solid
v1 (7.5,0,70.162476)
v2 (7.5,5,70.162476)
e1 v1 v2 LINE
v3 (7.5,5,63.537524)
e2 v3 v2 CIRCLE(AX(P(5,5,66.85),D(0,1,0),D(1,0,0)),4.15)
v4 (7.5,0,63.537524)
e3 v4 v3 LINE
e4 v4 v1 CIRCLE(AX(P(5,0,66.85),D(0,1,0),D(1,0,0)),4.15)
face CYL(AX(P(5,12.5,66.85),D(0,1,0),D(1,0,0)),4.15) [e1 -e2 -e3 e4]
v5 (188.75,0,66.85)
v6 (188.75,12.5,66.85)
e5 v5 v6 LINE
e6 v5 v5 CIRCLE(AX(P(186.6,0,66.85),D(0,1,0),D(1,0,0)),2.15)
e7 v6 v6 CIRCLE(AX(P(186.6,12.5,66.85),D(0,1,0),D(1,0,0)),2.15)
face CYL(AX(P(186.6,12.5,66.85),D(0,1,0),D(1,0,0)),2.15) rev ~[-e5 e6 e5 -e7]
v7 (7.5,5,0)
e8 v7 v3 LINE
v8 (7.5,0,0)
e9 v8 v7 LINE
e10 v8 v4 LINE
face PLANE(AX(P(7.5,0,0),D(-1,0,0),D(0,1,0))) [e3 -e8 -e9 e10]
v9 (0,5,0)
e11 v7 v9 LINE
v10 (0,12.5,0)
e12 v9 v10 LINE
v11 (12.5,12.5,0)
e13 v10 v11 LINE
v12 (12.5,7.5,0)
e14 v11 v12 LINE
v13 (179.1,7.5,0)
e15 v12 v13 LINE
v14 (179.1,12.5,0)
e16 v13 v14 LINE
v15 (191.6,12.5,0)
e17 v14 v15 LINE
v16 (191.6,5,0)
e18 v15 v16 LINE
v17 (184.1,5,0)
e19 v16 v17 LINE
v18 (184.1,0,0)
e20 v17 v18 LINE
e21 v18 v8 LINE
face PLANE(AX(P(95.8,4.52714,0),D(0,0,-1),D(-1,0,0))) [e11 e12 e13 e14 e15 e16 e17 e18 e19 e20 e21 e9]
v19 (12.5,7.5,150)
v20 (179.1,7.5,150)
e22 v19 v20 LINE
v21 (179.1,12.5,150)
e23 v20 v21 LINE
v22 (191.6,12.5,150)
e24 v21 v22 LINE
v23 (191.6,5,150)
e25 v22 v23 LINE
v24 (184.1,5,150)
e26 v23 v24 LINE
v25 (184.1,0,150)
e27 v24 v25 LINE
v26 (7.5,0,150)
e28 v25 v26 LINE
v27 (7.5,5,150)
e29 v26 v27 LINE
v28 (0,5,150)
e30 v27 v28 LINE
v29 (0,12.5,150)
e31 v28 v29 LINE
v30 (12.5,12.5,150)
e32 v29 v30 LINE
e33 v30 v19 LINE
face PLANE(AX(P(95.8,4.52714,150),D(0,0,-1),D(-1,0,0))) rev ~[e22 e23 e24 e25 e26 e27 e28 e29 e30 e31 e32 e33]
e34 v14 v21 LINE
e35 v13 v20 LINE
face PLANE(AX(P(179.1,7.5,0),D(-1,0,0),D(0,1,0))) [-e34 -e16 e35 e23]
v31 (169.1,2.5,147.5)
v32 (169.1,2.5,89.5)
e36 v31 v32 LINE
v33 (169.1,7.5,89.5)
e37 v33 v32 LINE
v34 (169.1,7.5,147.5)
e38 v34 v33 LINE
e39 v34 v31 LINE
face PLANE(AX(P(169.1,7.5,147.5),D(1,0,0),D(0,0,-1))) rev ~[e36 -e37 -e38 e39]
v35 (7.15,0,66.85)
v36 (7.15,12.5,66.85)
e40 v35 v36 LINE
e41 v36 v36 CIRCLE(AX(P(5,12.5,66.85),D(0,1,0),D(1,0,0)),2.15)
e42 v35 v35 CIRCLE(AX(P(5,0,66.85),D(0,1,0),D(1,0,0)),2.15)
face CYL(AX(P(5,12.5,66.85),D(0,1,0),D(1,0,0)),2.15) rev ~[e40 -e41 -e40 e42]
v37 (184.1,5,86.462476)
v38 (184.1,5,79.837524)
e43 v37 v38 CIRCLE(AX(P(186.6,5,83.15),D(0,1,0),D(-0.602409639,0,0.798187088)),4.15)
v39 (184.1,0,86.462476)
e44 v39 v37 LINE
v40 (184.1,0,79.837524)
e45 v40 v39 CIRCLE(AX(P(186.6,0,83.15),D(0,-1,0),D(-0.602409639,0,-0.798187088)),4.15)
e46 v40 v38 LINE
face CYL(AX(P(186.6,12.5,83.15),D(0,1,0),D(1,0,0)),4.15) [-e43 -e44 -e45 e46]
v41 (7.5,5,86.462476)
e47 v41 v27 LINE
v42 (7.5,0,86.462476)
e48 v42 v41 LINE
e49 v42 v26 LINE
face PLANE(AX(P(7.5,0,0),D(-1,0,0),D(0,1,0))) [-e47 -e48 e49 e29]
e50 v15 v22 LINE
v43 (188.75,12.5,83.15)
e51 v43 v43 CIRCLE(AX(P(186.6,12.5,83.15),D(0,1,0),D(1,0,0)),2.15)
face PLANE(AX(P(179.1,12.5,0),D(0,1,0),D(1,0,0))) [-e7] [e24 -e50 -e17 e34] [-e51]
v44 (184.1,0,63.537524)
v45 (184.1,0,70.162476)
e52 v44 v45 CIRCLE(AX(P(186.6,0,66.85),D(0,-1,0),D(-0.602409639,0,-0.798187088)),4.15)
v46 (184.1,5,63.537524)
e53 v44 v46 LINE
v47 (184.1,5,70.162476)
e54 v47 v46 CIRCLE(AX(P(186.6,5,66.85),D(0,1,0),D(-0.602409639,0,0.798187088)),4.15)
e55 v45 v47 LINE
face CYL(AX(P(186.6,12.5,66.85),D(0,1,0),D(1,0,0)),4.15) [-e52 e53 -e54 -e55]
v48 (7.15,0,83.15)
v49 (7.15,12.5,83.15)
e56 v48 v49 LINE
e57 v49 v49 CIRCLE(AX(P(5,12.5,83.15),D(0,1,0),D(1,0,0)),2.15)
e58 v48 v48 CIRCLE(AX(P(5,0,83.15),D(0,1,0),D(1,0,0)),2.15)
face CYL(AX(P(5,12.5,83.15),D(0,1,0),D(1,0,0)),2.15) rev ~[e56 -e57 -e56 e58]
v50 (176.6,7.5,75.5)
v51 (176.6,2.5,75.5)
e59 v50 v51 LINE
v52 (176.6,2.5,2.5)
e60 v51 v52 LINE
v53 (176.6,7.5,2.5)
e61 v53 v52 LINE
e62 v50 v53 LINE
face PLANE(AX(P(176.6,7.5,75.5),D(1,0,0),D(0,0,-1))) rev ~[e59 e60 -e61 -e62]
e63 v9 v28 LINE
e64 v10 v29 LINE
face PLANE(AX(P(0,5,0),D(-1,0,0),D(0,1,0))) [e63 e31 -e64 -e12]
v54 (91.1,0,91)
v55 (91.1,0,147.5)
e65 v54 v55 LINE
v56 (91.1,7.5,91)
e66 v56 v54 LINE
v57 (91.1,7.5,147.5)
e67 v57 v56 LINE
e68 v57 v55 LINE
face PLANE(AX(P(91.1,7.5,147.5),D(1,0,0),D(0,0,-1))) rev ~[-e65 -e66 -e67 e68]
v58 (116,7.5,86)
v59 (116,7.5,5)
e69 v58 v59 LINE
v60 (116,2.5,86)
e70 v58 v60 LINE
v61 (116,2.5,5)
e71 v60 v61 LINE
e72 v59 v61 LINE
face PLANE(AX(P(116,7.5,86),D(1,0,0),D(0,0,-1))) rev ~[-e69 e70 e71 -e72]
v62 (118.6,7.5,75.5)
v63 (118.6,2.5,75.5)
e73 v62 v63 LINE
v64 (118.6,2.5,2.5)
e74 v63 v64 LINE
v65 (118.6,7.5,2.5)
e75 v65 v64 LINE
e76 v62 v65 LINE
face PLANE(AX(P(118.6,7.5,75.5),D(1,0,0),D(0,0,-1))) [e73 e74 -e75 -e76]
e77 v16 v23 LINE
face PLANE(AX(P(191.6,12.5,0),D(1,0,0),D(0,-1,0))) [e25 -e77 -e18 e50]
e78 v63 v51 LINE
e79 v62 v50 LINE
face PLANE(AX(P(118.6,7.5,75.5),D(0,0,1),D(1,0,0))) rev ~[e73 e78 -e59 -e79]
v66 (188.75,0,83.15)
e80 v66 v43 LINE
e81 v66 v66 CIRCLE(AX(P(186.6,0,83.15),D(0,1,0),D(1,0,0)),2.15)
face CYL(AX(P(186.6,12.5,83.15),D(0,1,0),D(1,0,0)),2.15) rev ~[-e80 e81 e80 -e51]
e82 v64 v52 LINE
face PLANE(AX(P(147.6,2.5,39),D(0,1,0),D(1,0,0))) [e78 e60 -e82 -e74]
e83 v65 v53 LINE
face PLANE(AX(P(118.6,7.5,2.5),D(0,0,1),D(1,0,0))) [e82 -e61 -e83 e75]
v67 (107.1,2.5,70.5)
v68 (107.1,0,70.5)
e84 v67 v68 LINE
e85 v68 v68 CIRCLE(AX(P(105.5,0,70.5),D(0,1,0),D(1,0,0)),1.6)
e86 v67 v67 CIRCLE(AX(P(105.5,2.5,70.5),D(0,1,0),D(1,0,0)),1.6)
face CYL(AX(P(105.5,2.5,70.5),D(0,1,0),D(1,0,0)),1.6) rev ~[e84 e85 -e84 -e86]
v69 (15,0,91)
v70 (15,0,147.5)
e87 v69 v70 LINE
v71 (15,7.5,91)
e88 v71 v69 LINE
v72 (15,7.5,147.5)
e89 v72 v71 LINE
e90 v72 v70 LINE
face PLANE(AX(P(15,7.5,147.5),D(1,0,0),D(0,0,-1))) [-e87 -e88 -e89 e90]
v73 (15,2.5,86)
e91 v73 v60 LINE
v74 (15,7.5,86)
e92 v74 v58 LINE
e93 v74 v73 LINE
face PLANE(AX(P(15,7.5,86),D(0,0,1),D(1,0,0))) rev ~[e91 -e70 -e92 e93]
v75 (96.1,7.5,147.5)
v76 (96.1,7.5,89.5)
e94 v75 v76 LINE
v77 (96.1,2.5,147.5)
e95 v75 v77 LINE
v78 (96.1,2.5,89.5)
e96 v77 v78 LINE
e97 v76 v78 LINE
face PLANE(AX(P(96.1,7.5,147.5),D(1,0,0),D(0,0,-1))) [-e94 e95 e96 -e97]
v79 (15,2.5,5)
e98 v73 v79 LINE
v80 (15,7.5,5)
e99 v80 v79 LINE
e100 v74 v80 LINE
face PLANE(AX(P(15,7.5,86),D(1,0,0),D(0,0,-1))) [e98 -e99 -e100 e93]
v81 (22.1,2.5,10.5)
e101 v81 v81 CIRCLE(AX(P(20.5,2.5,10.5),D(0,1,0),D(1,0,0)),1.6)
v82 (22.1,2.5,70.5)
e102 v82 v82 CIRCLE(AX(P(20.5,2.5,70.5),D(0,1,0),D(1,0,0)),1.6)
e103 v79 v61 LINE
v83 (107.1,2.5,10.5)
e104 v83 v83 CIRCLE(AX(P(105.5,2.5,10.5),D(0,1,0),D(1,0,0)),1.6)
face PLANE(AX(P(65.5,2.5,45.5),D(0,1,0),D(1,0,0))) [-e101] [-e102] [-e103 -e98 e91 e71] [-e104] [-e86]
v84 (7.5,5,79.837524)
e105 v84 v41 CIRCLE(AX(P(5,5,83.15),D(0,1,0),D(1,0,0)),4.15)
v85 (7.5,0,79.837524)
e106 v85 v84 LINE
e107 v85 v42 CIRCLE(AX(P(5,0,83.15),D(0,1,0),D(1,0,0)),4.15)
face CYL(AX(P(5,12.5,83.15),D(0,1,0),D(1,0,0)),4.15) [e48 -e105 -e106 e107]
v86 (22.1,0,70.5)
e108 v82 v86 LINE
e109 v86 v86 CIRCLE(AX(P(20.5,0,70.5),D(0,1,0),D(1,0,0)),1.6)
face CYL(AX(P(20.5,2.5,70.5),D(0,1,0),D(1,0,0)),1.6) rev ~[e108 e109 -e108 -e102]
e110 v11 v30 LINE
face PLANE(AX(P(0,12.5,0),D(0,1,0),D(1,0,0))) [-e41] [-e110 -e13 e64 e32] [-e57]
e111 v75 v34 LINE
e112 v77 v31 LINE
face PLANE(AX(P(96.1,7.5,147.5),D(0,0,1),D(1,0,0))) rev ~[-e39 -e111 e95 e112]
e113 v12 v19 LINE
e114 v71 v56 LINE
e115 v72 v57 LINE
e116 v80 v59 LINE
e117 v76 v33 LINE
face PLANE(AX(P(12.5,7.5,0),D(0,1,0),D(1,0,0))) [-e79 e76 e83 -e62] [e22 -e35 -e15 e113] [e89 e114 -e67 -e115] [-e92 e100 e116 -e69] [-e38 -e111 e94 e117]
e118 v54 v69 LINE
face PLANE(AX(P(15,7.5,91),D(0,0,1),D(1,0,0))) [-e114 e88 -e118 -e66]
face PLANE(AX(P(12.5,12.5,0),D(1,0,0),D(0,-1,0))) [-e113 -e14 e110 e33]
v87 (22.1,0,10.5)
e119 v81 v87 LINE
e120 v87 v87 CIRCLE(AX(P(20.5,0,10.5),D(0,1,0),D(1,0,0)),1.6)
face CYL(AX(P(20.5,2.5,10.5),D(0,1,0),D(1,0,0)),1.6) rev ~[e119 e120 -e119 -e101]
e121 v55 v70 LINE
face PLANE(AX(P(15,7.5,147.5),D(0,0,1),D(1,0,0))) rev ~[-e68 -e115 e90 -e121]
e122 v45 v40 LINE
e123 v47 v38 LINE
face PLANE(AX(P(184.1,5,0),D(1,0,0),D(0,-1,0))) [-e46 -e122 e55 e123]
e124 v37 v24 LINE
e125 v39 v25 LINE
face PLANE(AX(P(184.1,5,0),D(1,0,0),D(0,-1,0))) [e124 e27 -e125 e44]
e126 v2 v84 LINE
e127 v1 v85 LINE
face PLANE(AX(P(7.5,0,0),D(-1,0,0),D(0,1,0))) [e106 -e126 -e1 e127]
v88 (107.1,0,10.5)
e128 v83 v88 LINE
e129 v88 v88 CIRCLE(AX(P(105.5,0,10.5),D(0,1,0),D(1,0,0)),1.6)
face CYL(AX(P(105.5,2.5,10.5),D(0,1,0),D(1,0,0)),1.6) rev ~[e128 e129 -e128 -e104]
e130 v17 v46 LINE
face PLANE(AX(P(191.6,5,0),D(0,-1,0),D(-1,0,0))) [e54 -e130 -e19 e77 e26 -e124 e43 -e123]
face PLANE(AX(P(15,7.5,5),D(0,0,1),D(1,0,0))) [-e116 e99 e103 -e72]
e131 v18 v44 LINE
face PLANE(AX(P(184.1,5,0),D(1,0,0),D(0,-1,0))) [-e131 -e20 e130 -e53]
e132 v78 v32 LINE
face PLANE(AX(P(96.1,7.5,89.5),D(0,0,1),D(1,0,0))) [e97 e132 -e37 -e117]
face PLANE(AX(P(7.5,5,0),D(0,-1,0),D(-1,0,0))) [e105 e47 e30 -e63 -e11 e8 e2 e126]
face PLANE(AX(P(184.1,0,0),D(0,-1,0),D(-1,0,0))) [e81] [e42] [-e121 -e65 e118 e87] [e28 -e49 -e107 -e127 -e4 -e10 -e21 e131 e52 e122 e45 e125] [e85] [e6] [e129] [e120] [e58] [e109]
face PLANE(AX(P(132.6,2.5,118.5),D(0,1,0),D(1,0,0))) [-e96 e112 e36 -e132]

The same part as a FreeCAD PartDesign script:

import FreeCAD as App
import Part
import Sketcher

V = App.Vector


def add_polygon(sketch, points):
    """Adds a closed chain of lines whose ends are joined by coincident constraints."""
    first, n = sketch.GeometryCount, len(points)
    for a, b in zip(points, points[1:] + points[:1]):
        sketch.addGeometry(Part.LineSegment(App.Vector(*a, 0), App.Vector(*b, 0)), False)
    for i in range(n):
        sketch.addConstraint(Sketcher.Constraint("Coincident", first + i, 2, first + (i + 1) % n, 1))

doc = App.newDocument("Part")
body = doc.addObject("PartDesign::Body", "Body")

# Sketch on XY plane
sketch1 = doc.addObject("Sketcher::SketchObject", "Sketch")
body.addObject(sketch1)
sketch1.AttachmentSupport = (doc.XY_Plane, [""])
sketch1.MapMode = "FlatFace"
add_polygon(sketch1, [(192, 12), (179, 12), (179, 8), (12, 8), (12, 12), (0, 12), (0, 5), (8, 5), (8, 0), (184, 0), (184, 5), (192, 5)])  # lines 0-11
sketch1.addConstraint(Sketcher.Constraint("Horizontal", 0))
sketch1.addConstraint(Sketcher.Constraint("Vertical", 1))
sketch1.addConstraint(Sketcher.Constraint("Horizontal", 2))
sketch1.addConstraint(Sketcher.Constraint("Vertical", 3))
sketch1.addConstraint(Sketcher.Constraint("Horizontal", 4))
sketch1.addConstraint(Sketcher.Constraint("Vertical", 5))
sketch1.addConstraint(Sketcher.Constraint("Horizontal", 6))
sketch1.addConstraint(Sketcher.Constraint("Vertical", 7))
sketch1.addConstraint(Sketcher.Constraint("Horizontal", 8))
sketch1.addConstraint(Sketcher.Constraint("Vertical", 9))
sketch1.addConstraint(Sketcher.Constraint("Horizontal", 10))
sketch1.addConstraint(Sketcher.Constraint("Vertical", 11))
sketch1.addConstraint(Sketcher.Constraint("PointOnObject", 4, 2, -2))
sketch1.addConstraint(Sketcher.Constraint("PointOnObject", 7, 2, -1))
sketch1.addConstraint(Sketcher.Constraint("Horizontal", 0, 2, 3, 2))
sketch1.addConstraint(Sketcher.Constraint("Horizontal", 6, 2, 9, 2))
sketch1.addConstraint(Sketcher.Constraint("Equal", 0, 4))
sketch1.addConstraint(Sketcher.Constraint("Equal", 6, 10))
sketch1.addConstraint(Sketcher.Constraint("Equal", 10, 5))
sketch1.addConstraint(Sketcher.Constraint("Equal", 3, 7))
sketch1.addConstraint(Sketcher.Constraint("DistanceY", 1, 2, 1, 1, 5.0))
sketch1.addConstraint(Sketcher.Constraint("DistanceX", 0, 2, 0, 1, 12.5))
sketch1.addConstraint(Sketcher.Constraint("DistanceX", 2, 2, 2, 1, 166.6))
sketch1.addConstraint(Sketcher.Constraint("DistanceX", 6, 1, 6, 2, 7.5))
pad1 = doc.addObject("PartDesign::Pad", "Pad")
body.addObject(pad1)
pad1.Profile = sketch1
pad1.Length = 150

# Sketch on XZ plane
sketch2 = doc.addObject("Sketcher::SketchObject", "Sketch001")
body.addObject(sketch2)
sketch2.AttachmentSupport = (doc.XZ_Plane, [""])
sketch2.MapMode = "FlatFace"
sketch2.AttachmentOffset = App.Placement(V(0, 0, -12.5), App.Rotation())
sketch2.addGeometry(Part.Circle(V(5, 66.8, 0), V(0, 0, 1), 2.1), False)
sketch2.addGeometry(Part.Circle(V(5, 83.2, 0), V(0, 0, 1), 2.1), False)
sketch2.addGeometry(Part.Circle(V(186.6, 66.8, 0), V(0, 0, 1), 2.1), False)
sketch2.addGeometry(Part.Circle(V(186.6, 83.2, 0), V(0, 0, 1), 2.1), False)
sketch2.addConstraint(Sketcher.Constraint("Equal", 0, 1))
sketch2.addConstraint(Sketcher.Constraint("Equal", 1, 2))
sketch2.addConstraint(Sketcher.Constraint("Equal", 2, 3))
sketch2.addConstraint(Sketcher.Constraint("Horizontal", 0, 3, 2, 3))
sketch2.addConstraint(Sketcher.Constraint("Horizontal", 1, 3, 3, 3))
sketch2.addConstraint(Sketcher.Constraint("Vertical", 0, 3, 1, 3))
sketch2.addConstraint(Sketcher.Constraint("Vertical", 2, 3, 3, 3))
sketch2.addConstraint(Sketcher.Constraint("Diameter", 0, 4.3))
sketch2.addConstraint(Sketcher.Constraint("DistanceX", -1, 1, 0, 3, 5.0))
sketch2.addConstraint(Sketcher.Constraint("DistanceX", -1, 1, 2, 3, 186.6))
sketch2.addConstraint(Sketcher.Constraint("DistanceY", 0, 3, 1, 3, 16.3))
sketch2.addConstraint(Sketcher.Constraint("DistanceY", -1, 1, 0, 3, 66.85))
pocket1 = doc.addObject("PartDesign::Pocket", "Pocket")
body.addObject(pocket1)
pocket1.Profile = sketch2
pocket1.Length = 7.5
pocket1.Reversed = True

# Sketch on XZ plane
sketch3 = doc.addObject("Sketcher::SketchObject", "Sketch002")
body.addObject(sketch3)
sketch3.AttachmentSupport = (doc.XZ_Plane, [""])
sketch3.MapMode = "FlatFace"
sketch3.AttachmentOffset = App.Placement(V(0, 0, -12.5), App.Rotation())
sketch3.addGeometry(Part.Circle(V(186.6, 66.8, 0), V(0, 0, 1), 4.2), False)
sketch3.addGeometry(Part.Circle(V(186.6, 66.8, 0), V(0, 0, 1), 2.1), False)
sketch3.addGeometry(Part.Circle(V(186.6, 83.2, 0), V(0, 0, 1), 4.2), False)
sketch3.addGeometry(Part.Circle(V(186.6, 83.2, 0), V(0, 0, 1), 2.1), False)
sketch3.addGeometry(Part.Circle(V(5, 66.8, 0), V(0, 0, 1), 4.2), False)
sketch3.addGeometry(Part.Circle(V(5, 66.8, 0), V(0, 0, 1), 2.1), False)
sketch3.addGeometry(Part.Circle(V(5, 83.2, 0), V(0, 0, 1), 4.2), False)
sketch3.addGeometry(Part.Circle(V(5, 83.2, 0), V(0, 0, 1), 2.1), False)
sketch3.addConstraint(Sketcher.Constraint("Coincident", 1, 3, 0, 3))
sketch3.addConstraint(Sketcher.Constraint("Coincident", 3, 3, 2, 3))
sketch3.addConstraint(Sketcher.Constraint("Coincident", 5, 3, 4, 3))
sketch3.addConstraint(Sketcher.Constraint("Coincident", 7, 3, 6, 3))
sketch3.addConstraint(Sketcher.Constraint("Equal", 0, 2))
sketch3.addConstraint(Sketcher.Constraint("Equal", 1, 3))
sketch3.addConstraint(Sketcher.Constraint("Equal", 2, 4))
sketch3.addConstraint(Sketcher.Constraint("Equal", 3, 5))
sketch3.addConstraint(Sketcher.Constraint("Equal", 4, 6))
sketch3.addConstraint(Sketcher.Constraint("Equal", 5, 7))
sketch3.addConstraint(Sketcher.Constraint("Horizontal", 1, 3, 4, 3))
sketch3.addConstraint(Sketcher.Constraint("Horizontal", 3, 3, 6, 3))
sketch3.addConstraint(Sketcher.Constraint("Vertical", 1, 3, 2, 3))
sketch3.addConstraint(Sketcher.Constraint("Vertical", 5, 3, 6, 3))
sketch3.addConstraint(Sketcher.Constraint("Diameter", 0, 8.3))
sketch3.addConstraint(Sketcher.Constraint("Diameter", 1, 4.3))
sketch3.addConstraint(Sketcher.Constraint("DistanceX", -1, 1, 4, 3, 5.0))
sketch3.addConstraint(Sketcher.Constraint("DistanceX", -1, 1, 0, 3, 186.6))
sketch3.addConstraint(Sketcher.Constraint("DistanceY", 0, 3, 2, 3, 16.3))
sketch3.addConstraint(Sketcher.Constraint("DistanceY", -1, 1, 0, 3, 66.85))
pad2 = doc.addObject("PartDesign::Pad", "Pad001")
body.addObject(pad2)
pad2.Profile = sketch3
pad2.Length = 12.5

# Sketch on XZ plane
sketch4 = doc.addObject("Sketcher::SketchObject", "Sketch003")
body.addObject(sketch4)
sketch4.AttachmentSupport = (doc.XZ_Plane, [""])
sketch4.MapMode = "FlatFace"
sketch4.AttachmentOffset = App.Placement(V(0, 0, -7.5), App.Rotation())
add_polygon(sketch4, [(15, 5), (15, 86), (116, 86), (116, 5)])  # lines 0-3
add_polygon(sketch4, [(119, 2), (119, 76), (177, 76), (177, 2)])  # lines 4-7
add_polygon(sketch4, [(96, 90), (96, 148), (169, 148), (169, 90)])  # lines 8-11
sketch4.addConstraint(Sketcher.Constraint("Vertical", 0))
sketch4.addConstraint(Sketcher.Constraint("Horizontal", 1))
sketch4.addConstraint(Sketcher.Constraint("Vertical", 2))
sketch4.addConstraint(Sketcher.Constraint("Horizontal", 3))
sketch4.addConstraint(Sketcher.Constraint("Vertical", 4))
sketch4.addConstraint(Sketcher.Constraint("Horizontal", 5))
sketch4.addConstraint(Sketcher.Constraint("Vertical", 6))
sketch4.addConstraint(Sketcher.Constraint("Horizontal", 7))
sketch4.addConstraint(Sketcher.Constraint("Vertical", 8))
sketch4.addConstraint(Sketcher.Constraint("Horizontal", 9))
sketch4.addConstraint(Sketcher.Constraint("Vertical", 10))
sketch4.addConstraint(Sketcher.Constraint("Horizontal", 11))
sketch4.addConstraint(Sketcher.Constraint("Equal", 11, 4))
sketch4.addConstraint(Sketcher.Constraint("Equal", 7, 8))
sketch4.addConstraint(Sketcher.Constraint("DistanceX", 1, 1, 1, 2, 101.0))
sketch4.addConstraint(Sketcher.Constraint("DistanceX", 5, 1, 5, 2, 58.0))
sketch4.addConstraint(Sketcher.Constraint("DistanceX", 9, 1, 9, 2, 73.0))
sketch4.addConstraint(Sketcher.Constraint("DistanceY", 0, 1, 0, 2, 81.0))
sketch4.addConstraint(Sketcher.Constraint("DistanceX", -1, 1, 0, 2, 15.0))
sketch4.addConstraint(Sketcher.Constraint("DistanceY", -1, 1, 0, 2, 86.0))
sketch4.addConstraint(Sketcher.Constraint("DistanceY", 4, 2, 8, 2, 72.0))
sketch4.addConstraint(Sketcher.Constraint("DistanceX", -1, 1, 4, 2, 118.6))
sketch4.addConstraint(Sketcher.Constraint("DistanceY", -1, 1, 4, 2, 75.5))
sketch4.addConstraint(Sketcher.Constraint("DistanceX", -1, 1, 8, 2, 96.1))
pocket2 = doc.addObject("PartDesign::Pocket", "Pocket001")
body.addObject(pocket2)
pocket2.Profile = sketch4
pocket2.Length = 5
pocket2.Reversed = True

# Sketch on XZ plane
sketch5 = doc.addObject("Sketcher::SketchObject", "Sketch004")
body.addObject(sketch5)
sketch5.AttachmentSupport = (doc.XZ_Plane, [""])
sketch5.MapMode = "FlatFace"
sketch5.AttachmentOffset = App.Placement(V(0, 0, -2.5), App.Rotation())
sketch5.addGeometry(Part.Circle(V(20.5, 10.5, 0), V(0, 0, 1), 1.6), False)
sketch5.addGeometry(Part.Circle(V(20.5, 70.5, 0), V(0, 0, 1), 1.6), False)
sketch5.addGeometry(Part.Circle(V(105.5, 70.5, 0), V(0, 0, 1), 1.6), False)
sketch5.addGeometry(Part.Circle(V(105.5, 10.5, 0), V(0, 0, 1), 1.6), False)
sketch5.addConstraint(Sketcher.Constraint("Equal", 0, 1))
sketch5.addConstraint(Sketcher.Constraint("Equal", 1, 2))
sketch5.addConstraint(Sketcher.Constraint("Equal", 2, 3))
sketch5.addConstraint(Sketcher.Constraint("Horizontal", 1, 3, 2, 3))
sketch5.addConstraint(Sketcher.Constraint("Horizontal", 0, 3, 3, 3))
sketch5.addConstraint(Sketcher.Constraint("Vertical", 0, 3, 1, 3))
sketch5.addConstraint(Sketcher.Constraint("Vertical", 2, 3, 3, 3))
sketch5.addConstraint(Sketcher.Constraint("Diameter", 0, 3.2))
sketch5.addConstraint(Sketcher.Constraint("DistanceY", 0, 3, 1, 3, 60.0))
sketch5.addConstraint(Sketcher.Constraint("DistanceX", 1, 3, 2, 3, 85.0))
sketch5.addConstraint(Sketcher.Constraint("DistanceX", -1, 1, 0, 3, 20.5))
sketch5.addConstraint(Sketcher.Constraint("DistanceY", -1, 1, 0, 3, 10.5))
pocket3 = doc.addObject("PartDesign::Pocket", "Pocket002")
body.addObject(pocket3)
pocket3.Profile = sketch5
pocket3.Length = 2.5
pocket3.Reversed = True

# Sketch on XZ plane
sketch6 = doc.addObject("Sketcher::SketchObject", "Sketch005")
body.addObject(sketch6)
sketch6.AttachmentSupport = (doc.XZ_Plane, [""])
sketch6.MapMode = "FlatFace"
sketch6.AttachmentOffset = App.Placement(V(0, 0, -7.5), App.Rotation())
add_polygon(sketch6, [(15, 91), (15, 148), (91, 148), (91, 91)])  # lines 0-3
sketch6.addConstraint(Sketcher.Constraint("Vertical", 0))
sketch6.addConstraint(Sketcher.Constraint("Horizontal", 1))
sketch6.addConstraint(Sketcher.Constraint("Vertical", 2))
sketch6.addConstraint(Sketcher.Constraint("Horizontal", 3))
sketch6.addConstraint(Sketcher.Constraint("DistanceX", 1, 1, 1, 2, 76.1))
sketch6.addConstraint(Sketcher.Constraint("DistanceY", 0, 1, 0, 2, 56.5))
sketch6.addConstraint(Sketcher.Constraint("DistanceX", -1, 1, 0, 2, 15.0))
sketch6.addConstraint(Sketcher.Constraint("DistanceY", -1, 1, 2, 2, 91.0))
pocket4 = doc.addObject("PartDesign::Pocket", "Pocket003")
body.addObject(pocket4)
pocket4.Profile = sketch6
pocket4.Type = "ThroughAll"
pocket4.Reversed = True

doc.recompute()
